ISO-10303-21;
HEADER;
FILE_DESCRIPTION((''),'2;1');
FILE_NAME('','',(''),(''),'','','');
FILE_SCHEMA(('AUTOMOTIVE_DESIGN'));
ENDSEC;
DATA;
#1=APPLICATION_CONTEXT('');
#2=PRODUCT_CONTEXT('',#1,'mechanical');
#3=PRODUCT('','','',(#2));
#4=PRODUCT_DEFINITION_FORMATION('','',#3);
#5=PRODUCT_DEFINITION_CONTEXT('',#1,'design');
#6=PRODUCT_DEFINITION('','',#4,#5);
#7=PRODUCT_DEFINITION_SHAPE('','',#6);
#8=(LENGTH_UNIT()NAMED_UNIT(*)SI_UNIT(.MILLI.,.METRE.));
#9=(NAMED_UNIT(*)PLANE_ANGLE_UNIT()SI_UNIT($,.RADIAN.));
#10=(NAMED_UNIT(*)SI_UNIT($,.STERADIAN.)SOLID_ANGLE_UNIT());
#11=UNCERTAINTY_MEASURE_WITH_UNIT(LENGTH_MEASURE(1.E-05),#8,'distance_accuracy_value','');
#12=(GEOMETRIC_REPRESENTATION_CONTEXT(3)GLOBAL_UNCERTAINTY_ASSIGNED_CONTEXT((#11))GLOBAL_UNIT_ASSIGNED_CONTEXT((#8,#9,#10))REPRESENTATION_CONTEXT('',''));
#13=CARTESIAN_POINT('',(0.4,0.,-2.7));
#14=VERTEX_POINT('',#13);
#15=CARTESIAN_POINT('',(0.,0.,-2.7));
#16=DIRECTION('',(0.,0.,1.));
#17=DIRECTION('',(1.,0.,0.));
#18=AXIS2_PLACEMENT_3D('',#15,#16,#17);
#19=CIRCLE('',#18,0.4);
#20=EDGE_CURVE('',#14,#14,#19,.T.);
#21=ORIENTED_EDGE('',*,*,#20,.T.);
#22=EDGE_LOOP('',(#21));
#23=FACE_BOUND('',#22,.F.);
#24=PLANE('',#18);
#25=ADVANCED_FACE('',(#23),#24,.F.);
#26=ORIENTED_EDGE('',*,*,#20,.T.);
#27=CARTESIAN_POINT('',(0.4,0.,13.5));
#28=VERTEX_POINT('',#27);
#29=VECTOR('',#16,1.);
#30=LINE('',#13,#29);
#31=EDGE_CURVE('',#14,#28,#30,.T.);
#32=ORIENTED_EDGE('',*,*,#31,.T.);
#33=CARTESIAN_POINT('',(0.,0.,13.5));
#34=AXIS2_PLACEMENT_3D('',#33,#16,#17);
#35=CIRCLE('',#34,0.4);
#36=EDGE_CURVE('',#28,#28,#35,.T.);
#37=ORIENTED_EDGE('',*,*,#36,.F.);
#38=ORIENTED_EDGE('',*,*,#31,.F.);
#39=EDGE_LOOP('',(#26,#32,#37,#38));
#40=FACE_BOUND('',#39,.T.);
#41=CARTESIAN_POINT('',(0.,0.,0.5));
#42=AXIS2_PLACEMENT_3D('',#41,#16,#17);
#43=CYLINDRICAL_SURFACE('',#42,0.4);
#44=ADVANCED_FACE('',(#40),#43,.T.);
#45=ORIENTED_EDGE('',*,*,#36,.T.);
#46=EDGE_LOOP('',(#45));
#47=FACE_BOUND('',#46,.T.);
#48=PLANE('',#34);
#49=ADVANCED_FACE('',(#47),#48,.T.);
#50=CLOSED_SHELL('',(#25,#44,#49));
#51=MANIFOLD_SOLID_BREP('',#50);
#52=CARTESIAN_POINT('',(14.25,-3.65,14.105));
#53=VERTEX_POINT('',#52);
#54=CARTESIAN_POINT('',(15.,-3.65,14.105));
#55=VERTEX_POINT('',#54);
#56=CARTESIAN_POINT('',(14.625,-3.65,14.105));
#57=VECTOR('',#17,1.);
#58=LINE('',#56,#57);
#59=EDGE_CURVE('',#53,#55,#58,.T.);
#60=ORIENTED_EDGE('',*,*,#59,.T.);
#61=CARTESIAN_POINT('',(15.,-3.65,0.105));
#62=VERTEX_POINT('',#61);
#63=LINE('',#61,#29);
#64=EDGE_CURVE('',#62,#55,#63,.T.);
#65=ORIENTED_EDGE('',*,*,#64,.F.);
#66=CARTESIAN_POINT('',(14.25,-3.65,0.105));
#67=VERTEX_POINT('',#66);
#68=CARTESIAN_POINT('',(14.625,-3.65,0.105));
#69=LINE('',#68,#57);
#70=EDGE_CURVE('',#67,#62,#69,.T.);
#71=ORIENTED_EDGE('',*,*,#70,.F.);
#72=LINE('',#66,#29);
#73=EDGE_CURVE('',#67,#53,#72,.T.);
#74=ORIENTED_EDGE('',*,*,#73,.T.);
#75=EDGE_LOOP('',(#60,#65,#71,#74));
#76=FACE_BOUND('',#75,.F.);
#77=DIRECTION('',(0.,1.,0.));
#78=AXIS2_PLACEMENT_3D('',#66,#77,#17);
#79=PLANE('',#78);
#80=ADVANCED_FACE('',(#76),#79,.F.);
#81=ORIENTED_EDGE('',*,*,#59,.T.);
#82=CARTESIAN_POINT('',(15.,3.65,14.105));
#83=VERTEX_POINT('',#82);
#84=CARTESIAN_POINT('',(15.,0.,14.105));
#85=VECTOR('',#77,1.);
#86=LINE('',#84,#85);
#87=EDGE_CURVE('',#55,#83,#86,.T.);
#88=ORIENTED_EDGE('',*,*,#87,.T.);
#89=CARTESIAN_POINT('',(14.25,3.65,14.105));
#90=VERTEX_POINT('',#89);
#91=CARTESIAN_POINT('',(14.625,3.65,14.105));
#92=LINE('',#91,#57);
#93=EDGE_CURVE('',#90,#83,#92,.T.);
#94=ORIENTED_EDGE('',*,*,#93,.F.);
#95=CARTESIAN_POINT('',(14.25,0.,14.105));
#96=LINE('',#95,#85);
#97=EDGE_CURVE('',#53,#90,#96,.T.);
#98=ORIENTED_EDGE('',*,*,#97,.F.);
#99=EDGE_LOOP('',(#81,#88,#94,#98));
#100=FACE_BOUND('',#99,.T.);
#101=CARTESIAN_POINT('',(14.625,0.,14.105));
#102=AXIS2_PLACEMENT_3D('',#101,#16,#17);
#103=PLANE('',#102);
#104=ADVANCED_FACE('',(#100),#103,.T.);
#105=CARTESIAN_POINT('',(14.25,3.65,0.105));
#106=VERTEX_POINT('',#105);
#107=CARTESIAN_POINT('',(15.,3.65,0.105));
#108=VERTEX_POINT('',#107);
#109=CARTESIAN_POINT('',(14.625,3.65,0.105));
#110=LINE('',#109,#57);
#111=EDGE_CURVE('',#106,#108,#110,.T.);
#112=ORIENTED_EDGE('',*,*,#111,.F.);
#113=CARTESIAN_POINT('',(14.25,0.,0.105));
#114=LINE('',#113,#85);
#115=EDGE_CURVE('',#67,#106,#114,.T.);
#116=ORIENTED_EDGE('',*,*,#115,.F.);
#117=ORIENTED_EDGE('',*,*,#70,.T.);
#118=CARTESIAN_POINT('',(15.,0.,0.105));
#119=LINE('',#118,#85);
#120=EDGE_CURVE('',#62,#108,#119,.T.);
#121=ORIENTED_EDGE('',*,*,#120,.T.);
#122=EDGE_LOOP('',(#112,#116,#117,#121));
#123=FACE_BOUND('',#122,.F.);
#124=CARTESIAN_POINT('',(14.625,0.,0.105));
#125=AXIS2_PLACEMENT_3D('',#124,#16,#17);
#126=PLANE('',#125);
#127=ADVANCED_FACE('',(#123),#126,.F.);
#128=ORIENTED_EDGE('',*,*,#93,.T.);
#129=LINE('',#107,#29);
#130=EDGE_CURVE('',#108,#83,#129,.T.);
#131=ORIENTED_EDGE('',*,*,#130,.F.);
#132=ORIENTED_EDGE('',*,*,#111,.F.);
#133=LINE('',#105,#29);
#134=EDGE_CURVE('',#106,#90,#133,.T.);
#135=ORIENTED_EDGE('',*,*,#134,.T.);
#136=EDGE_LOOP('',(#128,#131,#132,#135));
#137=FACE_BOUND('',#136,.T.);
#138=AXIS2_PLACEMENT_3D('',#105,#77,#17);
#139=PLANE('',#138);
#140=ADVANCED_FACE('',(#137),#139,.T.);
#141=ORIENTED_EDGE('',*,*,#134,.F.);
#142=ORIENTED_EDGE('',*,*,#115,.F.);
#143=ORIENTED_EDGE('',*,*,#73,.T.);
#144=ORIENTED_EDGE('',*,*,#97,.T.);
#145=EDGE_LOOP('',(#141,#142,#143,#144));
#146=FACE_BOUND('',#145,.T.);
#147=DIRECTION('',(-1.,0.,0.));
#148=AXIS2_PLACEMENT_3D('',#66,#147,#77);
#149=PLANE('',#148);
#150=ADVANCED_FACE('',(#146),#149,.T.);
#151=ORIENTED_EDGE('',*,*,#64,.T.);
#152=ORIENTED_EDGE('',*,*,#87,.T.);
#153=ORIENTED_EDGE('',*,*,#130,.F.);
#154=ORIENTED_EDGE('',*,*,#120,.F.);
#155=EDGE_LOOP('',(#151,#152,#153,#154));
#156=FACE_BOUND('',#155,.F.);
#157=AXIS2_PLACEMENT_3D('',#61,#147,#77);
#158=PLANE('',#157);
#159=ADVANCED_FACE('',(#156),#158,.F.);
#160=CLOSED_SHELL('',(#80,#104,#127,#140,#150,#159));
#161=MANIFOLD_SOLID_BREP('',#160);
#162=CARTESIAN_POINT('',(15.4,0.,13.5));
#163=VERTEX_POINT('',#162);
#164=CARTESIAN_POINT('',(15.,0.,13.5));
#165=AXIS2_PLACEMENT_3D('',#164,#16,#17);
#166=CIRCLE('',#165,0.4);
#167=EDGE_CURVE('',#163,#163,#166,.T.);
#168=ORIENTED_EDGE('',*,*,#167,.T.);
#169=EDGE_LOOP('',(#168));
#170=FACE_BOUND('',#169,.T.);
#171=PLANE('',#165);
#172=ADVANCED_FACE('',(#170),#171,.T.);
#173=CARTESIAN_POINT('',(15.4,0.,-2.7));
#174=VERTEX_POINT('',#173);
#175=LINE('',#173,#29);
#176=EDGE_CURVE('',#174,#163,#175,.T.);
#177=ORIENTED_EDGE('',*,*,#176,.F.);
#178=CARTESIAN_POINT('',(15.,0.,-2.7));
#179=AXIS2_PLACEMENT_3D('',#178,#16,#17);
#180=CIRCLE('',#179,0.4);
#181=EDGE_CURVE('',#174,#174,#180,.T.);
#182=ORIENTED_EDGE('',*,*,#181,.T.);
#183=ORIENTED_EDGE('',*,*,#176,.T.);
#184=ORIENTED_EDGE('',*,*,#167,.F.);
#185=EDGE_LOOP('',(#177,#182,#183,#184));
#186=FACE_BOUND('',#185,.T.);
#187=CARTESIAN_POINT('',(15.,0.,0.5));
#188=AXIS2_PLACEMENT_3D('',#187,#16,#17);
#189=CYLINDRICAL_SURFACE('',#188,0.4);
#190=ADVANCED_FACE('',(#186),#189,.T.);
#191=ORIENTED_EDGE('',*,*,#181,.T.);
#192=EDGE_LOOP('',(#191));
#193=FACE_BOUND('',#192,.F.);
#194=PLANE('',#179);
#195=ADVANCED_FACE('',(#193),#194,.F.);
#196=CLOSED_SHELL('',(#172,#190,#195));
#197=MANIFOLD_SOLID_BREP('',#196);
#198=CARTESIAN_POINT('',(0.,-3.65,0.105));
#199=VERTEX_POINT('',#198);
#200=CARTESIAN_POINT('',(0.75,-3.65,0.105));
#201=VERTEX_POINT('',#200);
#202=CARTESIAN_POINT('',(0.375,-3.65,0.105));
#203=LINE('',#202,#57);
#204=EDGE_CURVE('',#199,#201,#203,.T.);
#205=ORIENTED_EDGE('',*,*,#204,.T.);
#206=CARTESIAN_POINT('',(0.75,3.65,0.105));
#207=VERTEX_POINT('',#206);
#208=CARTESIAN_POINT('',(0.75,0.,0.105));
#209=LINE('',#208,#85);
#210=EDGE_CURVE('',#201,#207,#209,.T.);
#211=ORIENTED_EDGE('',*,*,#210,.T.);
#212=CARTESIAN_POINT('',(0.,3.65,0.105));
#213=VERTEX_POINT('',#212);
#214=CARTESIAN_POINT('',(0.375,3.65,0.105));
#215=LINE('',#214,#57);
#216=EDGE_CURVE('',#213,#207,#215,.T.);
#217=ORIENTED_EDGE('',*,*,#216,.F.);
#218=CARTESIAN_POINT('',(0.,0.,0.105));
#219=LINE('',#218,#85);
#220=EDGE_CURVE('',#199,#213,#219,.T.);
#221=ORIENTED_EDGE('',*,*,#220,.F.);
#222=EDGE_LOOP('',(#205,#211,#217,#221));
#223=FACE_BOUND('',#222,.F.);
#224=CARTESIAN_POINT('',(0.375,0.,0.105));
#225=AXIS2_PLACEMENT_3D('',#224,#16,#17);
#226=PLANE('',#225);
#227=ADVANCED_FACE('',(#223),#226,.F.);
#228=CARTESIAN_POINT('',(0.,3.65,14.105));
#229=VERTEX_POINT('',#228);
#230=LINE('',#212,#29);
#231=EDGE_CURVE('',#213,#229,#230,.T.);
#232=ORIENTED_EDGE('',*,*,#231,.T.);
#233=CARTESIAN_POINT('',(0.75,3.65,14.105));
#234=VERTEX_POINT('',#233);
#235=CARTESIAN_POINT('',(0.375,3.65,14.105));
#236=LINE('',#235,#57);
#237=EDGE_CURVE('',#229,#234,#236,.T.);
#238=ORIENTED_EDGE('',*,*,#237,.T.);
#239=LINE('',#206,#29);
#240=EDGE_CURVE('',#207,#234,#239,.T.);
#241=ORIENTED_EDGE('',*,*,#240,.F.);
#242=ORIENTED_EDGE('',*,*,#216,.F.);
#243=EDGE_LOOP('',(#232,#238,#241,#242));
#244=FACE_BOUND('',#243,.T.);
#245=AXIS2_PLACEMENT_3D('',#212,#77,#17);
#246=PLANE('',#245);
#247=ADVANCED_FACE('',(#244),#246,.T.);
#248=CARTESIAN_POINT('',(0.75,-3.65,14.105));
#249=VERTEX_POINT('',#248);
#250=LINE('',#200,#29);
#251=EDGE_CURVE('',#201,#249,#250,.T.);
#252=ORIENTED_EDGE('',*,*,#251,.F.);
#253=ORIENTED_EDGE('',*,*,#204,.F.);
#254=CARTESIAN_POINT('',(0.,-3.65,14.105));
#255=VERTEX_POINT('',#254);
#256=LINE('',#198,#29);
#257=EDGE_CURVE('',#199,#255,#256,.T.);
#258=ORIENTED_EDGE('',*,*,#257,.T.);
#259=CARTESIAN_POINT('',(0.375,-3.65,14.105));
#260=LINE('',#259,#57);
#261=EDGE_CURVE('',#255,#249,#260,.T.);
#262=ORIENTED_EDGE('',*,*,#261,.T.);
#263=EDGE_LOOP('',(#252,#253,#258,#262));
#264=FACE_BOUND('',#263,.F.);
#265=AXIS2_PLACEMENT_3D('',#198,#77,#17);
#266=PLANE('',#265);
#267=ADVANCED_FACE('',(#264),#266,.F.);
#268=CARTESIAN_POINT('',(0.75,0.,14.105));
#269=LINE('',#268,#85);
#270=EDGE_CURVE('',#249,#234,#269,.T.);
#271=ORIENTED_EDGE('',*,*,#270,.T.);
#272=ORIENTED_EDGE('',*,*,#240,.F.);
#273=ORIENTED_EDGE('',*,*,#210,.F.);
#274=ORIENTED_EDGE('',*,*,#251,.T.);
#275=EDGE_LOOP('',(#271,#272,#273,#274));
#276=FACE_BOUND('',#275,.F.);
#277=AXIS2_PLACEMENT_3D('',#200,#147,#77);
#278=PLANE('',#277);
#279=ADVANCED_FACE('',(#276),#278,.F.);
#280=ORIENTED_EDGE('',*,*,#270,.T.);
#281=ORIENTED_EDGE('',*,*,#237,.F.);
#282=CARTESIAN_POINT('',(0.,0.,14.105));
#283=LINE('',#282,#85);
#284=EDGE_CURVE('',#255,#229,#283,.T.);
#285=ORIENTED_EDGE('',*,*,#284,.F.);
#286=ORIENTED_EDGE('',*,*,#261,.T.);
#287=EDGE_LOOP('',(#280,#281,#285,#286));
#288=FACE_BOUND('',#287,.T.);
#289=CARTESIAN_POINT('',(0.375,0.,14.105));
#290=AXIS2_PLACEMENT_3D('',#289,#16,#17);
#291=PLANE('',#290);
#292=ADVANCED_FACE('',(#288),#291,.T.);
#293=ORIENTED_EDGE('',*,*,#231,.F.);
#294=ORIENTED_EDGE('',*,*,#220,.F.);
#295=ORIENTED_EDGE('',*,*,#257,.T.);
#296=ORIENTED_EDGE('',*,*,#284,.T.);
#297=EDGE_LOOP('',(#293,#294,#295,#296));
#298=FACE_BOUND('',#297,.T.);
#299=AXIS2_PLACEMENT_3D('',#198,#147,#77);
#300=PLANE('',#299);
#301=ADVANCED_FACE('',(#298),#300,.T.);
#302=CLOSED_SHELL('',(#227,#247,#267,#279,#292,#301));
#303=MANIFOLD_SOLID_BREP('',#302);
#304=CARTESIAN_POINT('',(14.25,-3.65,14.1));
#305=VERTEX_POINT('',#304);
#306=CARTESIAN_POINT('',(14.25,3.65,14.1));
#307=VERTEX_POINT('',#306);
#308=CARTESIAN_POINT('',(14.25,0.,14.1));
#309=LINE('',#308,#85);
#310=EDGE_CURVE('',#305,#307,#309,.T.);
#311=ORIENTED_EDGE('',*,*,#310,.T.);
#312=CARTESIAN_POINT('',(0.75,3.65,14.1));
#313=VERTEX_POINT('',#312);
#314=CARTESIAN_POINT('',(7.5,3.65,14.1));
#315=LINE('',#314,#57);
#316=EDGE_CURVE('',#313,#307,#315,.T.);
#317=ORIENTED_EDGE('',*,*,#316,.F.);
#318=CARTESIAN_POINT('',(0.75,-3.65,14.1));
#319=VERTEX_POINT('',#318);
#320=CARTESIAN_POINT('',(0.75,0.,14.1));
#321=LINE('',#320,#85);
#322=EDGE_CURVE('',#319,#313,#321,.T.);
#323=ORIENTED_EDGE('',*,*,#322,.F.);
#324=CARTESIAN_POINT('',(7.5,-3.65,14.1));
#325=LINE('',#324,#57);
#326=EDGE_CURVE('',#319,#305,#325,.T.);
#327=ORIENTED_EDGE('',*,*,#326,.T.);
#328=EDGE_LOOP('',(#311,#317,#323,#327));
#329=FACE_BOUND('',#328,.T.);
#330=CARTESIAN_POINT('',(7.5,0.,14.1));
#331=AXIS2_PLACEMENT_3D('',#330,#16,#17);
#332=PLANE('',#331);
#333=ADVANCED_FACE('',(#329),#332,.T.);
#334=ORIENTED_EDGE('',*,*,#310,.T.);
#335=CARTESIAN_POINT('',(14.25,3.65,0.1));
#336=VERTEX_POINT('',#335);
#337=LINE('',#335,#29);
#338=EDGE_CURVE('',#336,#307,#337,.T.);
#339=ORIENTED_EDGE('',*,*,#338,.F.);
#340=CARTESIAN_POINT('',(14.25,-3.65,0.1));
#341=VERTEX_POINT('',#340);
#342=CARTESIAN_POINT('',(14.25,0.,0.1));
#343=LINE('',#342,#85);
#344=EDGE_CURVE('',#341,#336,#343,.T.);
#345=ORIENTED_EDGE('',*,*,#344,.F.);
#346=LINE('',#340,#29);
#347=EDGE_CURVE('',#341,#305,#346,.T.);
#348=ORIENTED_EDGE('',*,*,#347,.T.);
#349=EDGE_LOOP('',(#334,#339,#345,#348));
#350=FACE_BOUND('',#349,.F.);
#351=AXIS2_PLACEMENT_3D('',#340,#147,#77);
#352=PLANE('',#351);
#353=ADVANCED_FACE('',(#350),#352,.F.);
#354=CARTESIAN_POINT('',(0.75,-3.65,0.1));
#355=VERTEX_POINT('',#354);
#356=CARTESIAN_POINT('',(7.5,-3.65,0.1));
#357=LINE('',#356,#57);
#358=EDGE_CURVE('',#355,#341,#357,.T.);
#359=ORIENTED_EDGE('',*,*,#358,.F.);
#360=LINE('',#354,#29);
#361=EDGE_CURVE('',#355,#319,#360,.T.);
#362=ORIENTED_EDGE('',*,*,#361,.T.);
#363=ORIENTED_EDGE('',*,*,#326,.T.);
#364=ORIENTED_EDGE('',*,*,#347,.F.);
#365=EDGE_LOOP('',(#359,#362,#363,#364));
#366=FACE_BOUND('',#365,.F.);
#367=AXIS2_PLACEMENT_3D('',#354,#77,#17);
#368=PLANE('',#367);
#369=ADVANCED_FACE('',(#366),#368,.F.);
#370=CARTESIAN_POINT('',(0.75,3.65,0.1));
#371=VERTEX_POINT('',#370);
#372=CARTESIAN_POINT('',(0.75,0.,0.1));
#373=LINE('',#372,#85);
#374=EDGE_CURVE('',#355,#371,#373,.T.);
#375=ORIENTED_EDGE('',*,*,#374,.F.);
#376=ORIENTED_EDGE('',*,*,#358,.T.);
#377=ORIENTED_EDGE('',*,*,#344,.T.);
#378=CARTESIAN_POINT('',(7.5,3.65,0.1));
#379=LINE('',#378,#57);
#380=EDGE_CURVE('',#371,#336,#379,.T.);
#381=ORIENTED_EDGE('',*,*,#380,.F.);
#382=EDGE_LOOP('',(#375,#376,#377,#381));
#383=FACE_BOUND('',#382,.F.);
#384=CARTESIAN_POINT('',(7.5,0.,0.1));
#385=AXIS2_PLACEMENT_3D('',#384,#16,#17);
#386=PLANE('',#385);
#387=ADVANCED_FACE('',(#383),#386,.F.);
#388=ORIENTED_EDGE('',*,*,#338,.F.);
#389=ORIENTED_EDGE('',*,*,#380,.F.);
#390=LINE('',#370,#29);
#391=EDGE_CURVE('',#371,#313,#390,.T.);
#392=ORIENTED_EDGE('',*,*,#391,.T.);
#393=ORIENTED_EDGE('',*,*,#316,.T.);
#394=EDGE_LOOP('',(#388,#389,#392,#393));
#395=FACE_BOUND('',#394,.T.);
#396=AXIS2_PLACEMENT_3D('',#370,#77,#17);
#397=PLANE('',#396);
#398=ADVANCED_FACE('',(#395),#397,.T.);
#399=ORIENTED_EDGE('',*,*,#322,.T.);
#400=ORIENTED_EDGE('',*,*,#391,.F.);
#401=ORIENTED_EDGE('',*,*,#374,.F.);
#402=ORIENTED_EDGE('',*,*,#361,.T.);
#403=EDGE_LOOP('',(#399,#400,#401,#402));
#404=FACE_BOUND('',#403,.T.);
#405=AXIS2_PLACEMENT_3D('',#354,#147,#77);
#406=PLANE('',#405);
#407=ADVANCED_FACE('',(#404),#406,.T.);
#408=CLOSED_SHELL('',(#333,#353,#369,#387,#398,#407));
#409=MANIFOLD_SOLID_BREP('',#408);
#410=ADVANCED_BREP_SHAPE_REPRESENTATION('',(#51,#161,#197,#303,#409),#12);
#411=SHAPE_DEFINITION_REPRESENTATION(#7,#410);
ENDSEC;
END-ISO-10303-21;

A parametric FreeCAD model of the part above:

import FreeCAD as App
import Part
import Sketcher

doc = App.newDocument("Part")
body = doc.addObject("PartDesign::Body", "Body")

# Sketch on XY plane
sketch1 = doc.addObject("Sketcher::SketchObject", "Sketch")
body.addObject(sketch1)
sketch1.AttachmentSupport = (doc.XY_Plane, [""])
sketch1.MapMode = "FlatFace"
sketch1.AttachmentOffset = App.Placement(App.Vector(0, 0, 0.1), App.Rotation())
sketch1.addGeometry([
    Part.LineSegment(App.Vector(1, 4, 0), App.Vector(1, -4, 0)),
    Part.LineSegment(App.Vector(1, -4, 0), App.Vector(14, -4, 0)),
    Part.LineSegment(App.Vector(14, -4, 0), App.Vector(14, 4, 0)),
    Part.LineSegment(App.Vector(14, 4, 0), App.Vector(1, 4, 0)),
], False)
sketch1.addConstraint([
    Sketcher.Constraint("Coincident", 0, 2, 1, 1),
    Sketcher.Constraint("Coincident", 1, 2, 2, 1),
    Sketcher.Constraint("Coincident", 2, 2, 3, 1),
    Sketcher.Constraint("Coincident", 3, 2, 0, 1),
    Sketcher.Constraint("Vertical", 0),
    Sketcher.Constraint("Horizontal", 1),
    Sketcher.Constraint("Vertical", 2),
    Sketcher.Constraint("Horizontal", 3),
    Sketcher.Constraint("DistanceX", 1, 1, 1, 2, 13.5),
    Sketcher.Constraint("DistanceY", 0, 2, 0, 1, 7.3),
    Sketcher.Constraint("DistanceX", -1, 1, 0, 2, 0.75),
    Sketcher.Constraint("DistanceY", 0, 2, -1, 1, 3.65),
])
pad1 = doc.addObject("PartDesign::Pad", "Pad")
body.addObject(pad1)
pad1.Profile = sketch1
pad1.Length = 14
body2 = doc.addObject("PartDesign::Body", "Body001")
body2.AllowCompound = True

# Sketch on XY plane
sketch2 = doc.addObject("Sketcher::SketchObject", "Sketch001")
body2.addObject(sketch2)
sketch2.AttachmentSupport = (doc.getObject("XY_Plane001"), [""])
sketch2.MapMode = "FlatFace"
sketch2.AttachmentOffset = App.Placement(App.Vector(0, 0, 0.5), App.Rotation())
sketch2.addGeometry([
    Part.Circle(App.Vector(0, 0, 0), App.Vector(0, 0, 1), 0.4),
    Part.Circle(App.Vector(15, 0, 0), App.Vector(0, 0, 1), 0.4),
], False)
sketch2.addConstraint([
    Sketcher.Constraint("Coincident", 0, 3, -1, 1),
    Sketcher.Constraint("Equal", 0, 1),
    Sketcher.Constraint("PointOnObject", 1, 3, -1),
    Sketcher.Constraint("Diameter", 0, 0.8),
    Sketcher.Constraint("DistanceX", -1, 1, 1, 3, 15.0),
])
pad2 = doc.addObject("PartDesign::Pad", "Pad001")
body2.addObject(pad2)
pad2.Profile = sketch2
pad2.Type = "TwoLengths"
pad2.Length = 13
pad2.Length2 = 3.2
body3 = doc.addObject("PartDesign::Body", "Body002")
body3.AllowCompound = True

# Sketch on XY plane
sketch3 = doc.addObject("Sketcher::SketchObject", "Sketch002")
body3.addObject(sketch3)
sketch3.AttachmentSupport = (doc.getObject("XY_Plane002"), [""])
sketch3.MapMode = "FlatFace"
sketch3.AttachmentOffset = App.Placement(App.Vector(0, 0, 0.105), App.Rotation())
sketch3.addGeometry([
    Part.LineSegment(App.Vector(0, 3.6, 0), App.Vector(0, -3.6, 0)),  # 0
    Part.LineSegment(App.Vector(0, -3.6, 0), App.Vector(0.8, -3.6, 0)),  # 1
    Part.LineSegment(App.Vector(0.8, -3.6, 0), App.Vector(0.8, 3.6, 0)),  # 2
    Part.LineSegment(App.Vector(0.8, 3.6, 0), App.Vector(0, 3.6, 0)),  # 3
    Part.LineSegment(App.Vector(14.2, 3.6, 0), App.Vector(14.2, -3.6, 0)),  # 4
    Part.LineSegment(App.Vector(14.2, -3.6, 0), App.Vector(15, -3.6, 0)),  # 5
    Part.LineSegment(App.Vector(15, -3.6, 0), App.Vector(15, 3.6, 0)),  # 6
    Part.LineSegment(App.Vector(15, 3.6, 0), App.Vector(14.2, 3.6, 0)),  # 7
], False)
sketch3.addConstraint([
    Sketcher.Constraint("Coincident", 0, 2, 1, 1),
    Sketcher.Constraint("Coincident", 1, 2, 2, 1),
    Sketcher.Constraint("Coincident", 2, 2, 3, 1),
    Sketcher.Constraint("Coincident", 3, 2, 0, 1),
    Sketcher.Constraint("Coincident", 4, 2, 5, 1),
    Sketcher.Constraint("Coincident", 5, 2, 6, 1),
    Sketcher.Constraint("Coincident", 6, 2, 7, 1),
    Sketcher.Constraint("Coincident", 7, 2, 4, 1),
    Sketcher.Constraint("Vertical", 0),
    Sketcher.Constraint("Horizontal", 1),
    Sketcher.Constraint("Vertical", 2),
    Sketcher.Constraint("Horizontal", 3),
    Sketcher.Constraint("Vertical", 4),
    Sketcher.Constraint("Horizontal", 5),
    Sketcher.Constraint("Vertical", 6),
    Sketcher.Constraint("Horizontal", 7),
    Sketcher.Constraint("Symmetric", 0, 2, 3, 2, -1, 1),
    Sketcher.Constraint("Horizontal", 1, 2, 4, 2),
    Sketcher.Constraint("Horizontal", 3, 2, 6, 2),
    Sketcher.Constraint("Equal", 3, 5),
    Sketcher.Constraint("DistanceY", 0, 2, 0, 1, 7.3),
    Sketcher.Constraint("DistanceX", -1, 1, 5, 2, 15.0),
    Sketcher.Constraint("DistanceX", 1, 1, 1, 2, 0.75),
])
pad3 = doc.addObject("PartDesign::Pad", "Pad002")
body3.addObject(pad3)
pad3.Profile = sketch3
pad3.Length = 14

doc.recompute()
